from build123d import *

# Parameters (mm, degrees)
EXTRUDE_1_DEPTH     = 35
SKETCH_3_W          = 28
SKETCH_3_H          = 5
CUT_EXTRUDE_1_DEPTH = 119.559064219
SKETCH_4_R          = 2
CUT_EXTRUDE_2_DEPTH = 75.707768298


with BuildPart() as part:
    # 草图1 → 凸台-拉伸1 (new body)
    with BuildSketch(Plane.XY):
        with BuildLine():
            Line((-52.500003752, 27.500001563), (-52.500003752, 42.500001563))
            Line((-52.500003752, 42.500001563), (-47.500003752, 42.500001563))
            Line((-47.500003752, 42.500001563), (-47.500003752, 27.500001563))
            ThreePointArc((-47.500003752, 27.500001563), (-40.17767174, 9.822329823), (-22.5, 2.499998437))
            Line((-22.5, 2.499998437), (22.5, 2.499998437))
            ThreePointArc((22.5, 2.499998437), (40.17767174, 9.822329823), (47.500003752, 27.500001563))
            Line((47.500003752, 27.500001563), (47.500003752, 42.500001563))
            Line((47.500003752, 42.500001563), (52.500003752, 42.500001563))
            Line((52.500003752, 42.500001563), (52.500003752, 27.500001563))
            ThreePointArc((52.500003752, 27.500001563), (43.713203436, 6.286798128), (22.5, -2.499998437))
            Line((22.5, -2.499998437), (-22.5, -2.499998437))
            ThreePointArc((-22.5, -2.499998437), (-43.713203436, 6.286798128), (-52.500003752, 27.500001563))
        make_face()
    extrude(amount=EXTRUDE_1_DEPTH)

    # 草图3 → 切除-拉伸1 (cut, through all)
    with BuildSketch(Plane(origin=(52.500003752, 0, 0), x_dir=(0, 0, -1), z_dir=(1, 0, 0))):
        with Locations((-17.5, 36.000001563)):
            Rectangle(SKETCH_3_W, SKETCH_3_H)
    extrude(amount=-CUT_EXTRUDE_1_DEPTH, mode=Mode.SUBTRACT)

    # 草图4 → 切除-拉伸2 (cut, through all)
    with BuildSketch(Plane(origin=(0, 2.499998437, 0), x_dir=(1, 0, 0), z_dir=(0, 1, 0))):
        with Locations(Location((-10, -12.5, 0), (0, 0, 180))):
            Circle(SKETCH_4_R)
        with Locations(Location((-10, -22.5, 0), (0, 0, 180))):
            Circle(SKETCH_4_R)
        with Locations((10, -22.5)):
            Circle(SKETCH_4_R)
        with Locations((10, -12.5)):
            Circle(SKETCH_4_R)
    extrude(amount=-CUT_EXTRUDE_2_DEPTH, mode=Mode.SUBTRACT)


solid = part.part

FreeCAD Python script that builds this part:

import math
import FreeCAD as App
import Part
import Sketcher

V = App.Vector


def add_polygon(sketch, points):
    """Adds a closed chain of lines whose ends are joined by coincident constraints."""
    first, n = sketch.GeometryCount, len(points)
    for a, b in zip(points, points[1:] + points[:1]):
        sketch.addGeometry(Part.LineSegment(App.Vector(*a, 0), App.Vector(*b, 0)), False)
    for i in range(n):
        sketch.addConstraint(Sketcher.Constraint("Coincident", first + i, 2, first + (i + 1) % n, 1))

doc = App.newDocument("Part")
params = doc.addObject("Spreadsheet::Sheet", "Params")
for row, (alias, value) in enumerate([
    ("sketch1_width", "45 mm"),
    ("sketch1_width2", "5 mm"),
    ("sketch1_height", "15 mm"),
    ("pad1_length", "35 mm"),
    ("sketch2_width", "5 mm"),
    ("sketch2_height", "28 mm"),
    ("sketch3_diameter", "4 mm"),
], start=1):
    params.set(f"A{row}", alias)
    params.set(f"B{row}", "=" + value)
    params.setAlias(f"B{row}", alias)

body = doc.addObject("PartDesign::Body", "Body")

# Sketch on XY plane
sketch1 = body.newObject("Sketcher::SketchObject", "Sketch")
sketch1.AttachmentSupport = (doc.getObject("XY_Plane"), [""])
sketch1.MapMode = "FlatFace"
sketch1.addGeometry([
    Part.LineSegment(V(-52.500004, 42.500002, 0), V(-52.500004, 27.500002, 0)),  # 0
    Part.ArcOfCircle(Part.Circle(V(-22.499997, 27.500008, 0), V(0, 0, 1), 30.000006), math.radians(-179.999988), math.radians(-90.000005)),  # 1
    Part.LineSegment(V(-22.5, -2.499998, 0), V(22.5, -2.499998, 0)),  # 2
    Part.ArcOfCircle(Part.Circle(V(22.499997, 27.500008, 0), V(0, 0, 1), 30.000006), math.radians(-89.999995), math.radians(-0.000012)),  # 3
    Part.LineSegment(V(52.500004, 27.500002, 0), V(52.500004, 42.500002, 0)),  # 4
    Part.LineSegment(V(52.500004, 42.500002, 0), V(47.500004, 42.500002, 0)),  # 5
    Part.LineSegment(V(47.500004, 42.500002, 0), V(47.500004, 27.500002, 0)),  # 6
    Part.ArcOfCircle(Part.Circle(V(22.5, 27.500003, 0), V(0, 0, 1), 25.000004), math.radians(-89.999999), math.radians(-0.000002)),  # 7
    Part.LineSegment(V(22.5, 2.499998, 0), V(-22.5, 2.499998, 0)),  # 8
    Part.ArcOfCircle(Part.Circle(V(-22.5, 27.500003, 0), V(0, 0, 1), 25.000004), math.radians(-179.999998), math.radians(-90.000001)),  # 9
    Part.LineSegment(V(-47.500004, 27.500002, 0), V(-47.500004, 42.500002, 0)),  # 10
    Part.LineSegment(V(-47.500004, 42.500002, 0), V(-52.500004, 42.500002, 0)),  # 11
], False)
sketch1.addConstraint([
    Sketcher.Constraint("Tangent", 0, 2, 1, 1),
    Sketcher.Constraint("Tangent", 1, 2, 2, 1),
    Sketcher.Constraint("Tangent", 2, 2, 3, 1),
    Sketcher.Constraint("Tangent", 3, 2, 4, 1),
    Sketcher.Constraint("Coincident", 4, 2, 5, 1),
    Sketcher.Constraint("Coincident", 5, 2, 6, 1),
    Sketcher.Constraint("Tangent", 6, 2, 7, 2),
    Sketcher.Constraint("Tangent", 7, 1, 8, 1),
    Sketcher.Constraint("Tangent", 8, 2, 9, 2),
    Sketcher.Constraint("Tangent", 9, 1, 10, 1),
    Sketcher.Constraint("Coincident", 10, 2, 11, 1),
    Sketcher.Constraint("Coincident", 11, 2, 0, 1),
    Sketcher.Constraint("Vertical", 0),
    Sketcher.Constraint("Horizontal", 2),
    Sketcher.Constraint("Vertical", 4),
    Sketcher.Constraint("Horizontal", 5),
    Sketcher.Constraint("Vertical", 6),
    Sketcher.Constraint("Horizontal", 8),
    Sketcher.Constraint("Vertical", 10),
    Sketcher.Constraint("Horizontal", 11),
    Sketcher.Constraint("Coincident", 7, 3, 3, 3),
    Sketcher.Constraint("Coincident", 9, 3, 1, 3),
    Sketcher.Constraint("Equal", 1, 3),
    Sketcher.Constraint("Symmetric", 1, 2, 7, 1, -1, 1),
    Sketcher.Constraint("Horizontal", 5, 2, 10, 2),
    Sketcher.Constraint("DistanceX", 2, 1, 2, 2, 45.0),
    Sketcher.Constraint("DistanceX", 5, 2, 5, 1, 5.0),
    Sketcher.Constraint("DistanceY", 0, 2, 0, 1, 15.0),
    Sketcher.Constraint("DistanceX", 0, 2, 3, 3, 75.000001),
])
sketch1.setExpression("Constraints[25]", "Params.sketch1_width")
sketch1.setExpression("Constraints[26]", "Params.sketch1_width2")
sketch1.setExpression("Constraints[27]", "Params.sketch1_height")
pad1 = body.newObject("PartDesign::Pad", "Pad")
pad1.Profile = sketch1
pad1.setExpression("Length", "Params.pad1_length")

# Sketch on YZ plane
sketch2 = body.newObject("Sketcher::SketchObject", "Sketch001")
sketch2.AttachmentSupport = (doc.getObject("YZ_Plane"), [""])
sketch2.MapMode = "FlatFace"
sketch2.AttachmentOffset = App.Placement(V(0, 0, 52.500004), App.Rotation())
add_polygon(sketch2, [(38.500002, 31.5), (33.500002, 31.5), (33.500002, 3.5), (38.500002, 3.5)])  # lines 0-3
sketch2.addConstraint([
    Sketcher.Constraint("Horizontal", 0),
    Sketcher.Constraint("Vertical", 1),
    Sketcher.Constraint("Horizontal", 2),
    Sketcher.Constraint("Vertical", 3),
    Sketcher.Constraint("DistanceX", 0, 2, 0, 1, 5.0),
    Sketcher.Constraint("DistanceY", 1, 2, 1, 1, 28.0),
    Sketcher.Constraint("DistanceX", -1, 1, 0, 2, 33.500002),
    Sketcher.Constraint("DistanceY", -1, 1, 0, 2, 31.5),
])
sketch2.setExpression("Constraints[8]", "Params.sketch2_width")
sketch2.setExpression("Constraints[9]", "Params.sketch2_height")
pocket1 = body.newObject("PartDesign::Pocket", "Pocket")
pocket1.Profile = sketch2
pocket1.Type = "ThroughAll"

# Sketch on XZ plane
sketch3 = body.newObject("Sketcher::SketchObject", "Sketch002")
sketch3.AttachmentSupport = (doc.getObject("XZ_Plane"), [""])
sketch3.MapMode = "FlatFace"
sketch3.AttachmentOffset = App.Placement(V(0, 0, -2.499998), App.Rotation())
sketch3.addGeometry([
    Part.Circle(V(-10, 12.5, 0), V(0, 0, 1), 2),
    Part.Circle(V(-10, 22.5, 0), V(0, 0, 1), 2),
    Part.Circle(V(10, 22.5, 0), V(0, 0, 1), 2),
    Part.Circle(V(10, 12.5, 0), V(0, 0, 1), 2),
], False)
sketch3.addConstraint([
    Sketcher.Constraint("Equal", 0, 1),
    Sketcher.Constraint("Equal", 1, 2),
    Sketcher.Constraint("Equal", 2, 3),
    Sketcher.Constraint("Symmetric", 1, 3, 2, 3, -2),
    Sketcher.Constraint("Symmetric", 0, 3, 3, 3, -2),
    Sketcher.Constraint("Vertical", 0, 3, 1, 3),
    Sketcher.Constraint("Diameter", 0, 4.0),
    Sketcher.Constraint("DistanceX", 0, 3, -1, 1, 10.0),
    Sketcher.Constraint("DistanceY", 0, 3, 1, 3, 10.0),
    Sketcher.Constraint("DistanceY", -1, 1, 0, 3, 12.5),
])
sketch3.setExpression("Constraints[6]", "Params.sketch3_diameter")
pocket2 = body.newObject("PartDesign::Pocket", "Pocket001")
pocket2.Profile = sketch3
pocket2.Type = "ThroughAll"
pocket2.Reversed = True

doc.recompute()
